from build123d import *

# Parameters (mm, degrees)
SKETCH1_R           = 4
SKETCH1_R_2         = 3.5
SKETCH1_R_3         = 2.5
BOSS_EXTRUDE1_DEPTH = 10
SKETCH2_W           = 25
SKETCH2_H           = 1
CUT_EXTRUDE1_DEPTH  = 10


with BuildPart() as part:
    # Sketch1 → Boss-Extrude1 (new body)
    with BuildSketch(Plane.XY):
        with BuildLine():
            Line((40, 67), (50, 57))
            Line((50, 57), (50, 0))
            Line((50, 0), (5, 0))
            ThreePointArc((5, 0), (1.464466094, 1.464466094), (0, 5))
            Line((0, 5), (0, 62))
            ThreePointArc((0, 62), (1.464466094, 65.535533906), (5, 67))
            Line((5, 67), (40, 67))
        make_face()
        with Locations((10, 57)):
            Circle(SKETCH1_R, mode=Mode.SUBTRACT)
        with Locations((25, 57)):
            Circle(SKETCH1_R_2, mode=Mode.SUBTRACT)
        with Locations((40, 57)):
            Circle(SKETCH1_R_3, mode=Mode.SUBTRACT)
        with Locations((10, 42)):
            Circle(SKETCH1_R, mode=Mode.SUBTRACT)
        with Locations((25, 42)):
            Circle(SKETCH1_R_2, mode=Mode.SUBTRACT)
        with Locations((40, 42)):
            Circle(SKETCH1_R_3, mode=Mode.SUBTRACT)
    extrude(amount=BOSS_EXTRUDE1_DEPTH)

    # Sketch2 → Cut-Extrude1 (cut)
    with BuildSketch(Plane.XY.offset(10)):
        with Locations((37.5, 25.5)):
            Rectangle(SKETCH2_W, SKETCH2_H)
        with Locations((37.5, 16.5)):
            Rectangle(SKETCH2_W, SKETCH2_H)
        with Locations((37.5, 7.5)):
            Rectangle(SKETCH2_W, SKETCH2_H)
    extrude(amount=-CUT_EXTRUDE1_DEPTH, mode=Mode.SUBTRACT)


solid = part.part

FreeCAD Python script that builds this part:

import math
import FreeCAD as App
import Part
import Sketcher
from FreeCAD import Vector
Q = App.Units.Quantity

doc = App.newDocument("Part")
params = doc.addObject("Spreadsheet::Sheet", "Params")
for row, (alias, value) in enumerate([
    ("sketch1_diameter", "5 mm"),
    ("sketch1_diameter2", "7 mm"),
    ("sketch1_diameter3", "8 mm"),
    ("sketch1_radius", "5 mm"),
    ("sketch1_width", "35 mm"),
    ("pad1_length", "10 mm"),
    ("sketch2_width", "25 mm"),
    ("sketch2_height", "1 mm"),
    ("pocket1_length", "10 mm"),
], start=1):
    params.set(f"A{row}", alias)
    params.set(f"B{row}", "=" + value)
    params.setAlias(f"B{row}", alias)

body = doc.addObject("PartDesign::Body", "Body")

# Sketch on XY plane
sketch1 = body.newObject("Sketcher::SketchObject", "Sketch")
sketch1.AttachmentSupport = (doc.getObject("XY_Plane"), [""])
sketch1.MapMode = "FlatFace"
sketch1.addGeometry([
    Part.LineSegment(Vector(50, 57, 0), Vector(40, 67, 0)),  # 0
    Part.LineSegment(Vector(40, 67, 0), Vector(5, 67, 0)),  # 1
    Part.ArcOfCircle(Part.Circle(Vector(5, 62, 0), Vector(0, 0, 1), 5), math.radians(90), math.radians(180)),  # 2
    Part.LineSegment(Vector(0, 62, 0), Vector(0, 5, 0)),  # 3
    Part.ArcOfCircle(Part.Circle(Vector(5, 5, 0), Vector(0, 0, 1), 5), math.radians(180), math.radians(270)),  # 4
    Part.LineSegment(Vector(5, 0, 0), Vector(50, 0, 0)),  # 5
    Part.LineSegment(Vector(50, 0, 0), Vector(50, 57, 0)),  # 6
    Part.Circle(Vector(40, 42, 0), Vector(0, 0, 1), 2.5),  # 7
    Part.Circle(Vector(25, 42, 0), Vector(0, 0, 1), 3.5),  # 8
    Part.Circle(Vector(10, 42, 0), Vector(0, 0, 1), 4),  # 9
    Part.Circle(Vector(40, 57, 0), Vector(0, 0, 1), 2.5),  # 10
    Part.Circle(Vector(25, 57, 0), Vector(0, 0, 1), 3.5),  # 11
    Part.Circle(Vector(10, 57, 0), Vector(0, 0, 1), 4),  # 12
], False)
sketch1.addConstraint([
    Sketcher.Constraint("Coincident", 0, 2, 1, 1),
    Sketcher.Constraint("Tangent", 1, 2, 2, 1),
    Sketcher.Constraint("Tangent", 2, 2, 3, 1),
    Sketcher.Constraint("Tangent", 3, 2, 4, 1),
    Sketcher.Constraint("Tangent", 4, 2, 5, 1),
    Sketcher.Constraint("Coincident", 5, 2, 6, 1),
    Sketcher.Constraint("Coincident", 6, 2, 0, 1),
    Sketcher.Constraint("Horizontal", 1),
    Sketcher.Constraint("Vertical", 3),
    Sketcher.Constraint("Horizontal", 5),
    Sketcher.Constraint("Vertical", 6),
    Sketcher.Constraint("Equal", 2, 4),
    Sketcher.Constraint("Equal", 7, 10),
    Sketcher.Constraint("Equal", 8, 11),
    Sketcher.Constraint("Equal", 9, 12),
    Sketcher.Constraint("PointOnObject", 2, 2, -2),
    Sketcher.Constraint("PointOnObject", 4, 2, -1),
    Sketcher.Constraint("Horizontal", 7, 3, 8, 3),
    Sketcher.Constraint("Horizontal", 8, 3, 9, 3),
    Sketcher.Constraint("Horizontal", 10, 3, 11, 3),
    Sketcher.Constraint("Horizontal", 11, 3, 12, 3),
    Sketcher.Constraint("Horizontal", 12, 3, 6, 2),
    Sketcher.Constraint("Vertical", 7, 3, 10, 3),
    Sketcher.Constraint("Vertical", 8, 3, 11, 3),
    Sketcher.Constraint("Vertical", 9, 3, 12, 3),
    Sketcher.Constraint("Vertical", 10, 3, 0, 2),
    Sketcher.Constraint("Equal", 3, 6),
    Sketcher.Constraint("Diameter", 7, Q("5 mm")),
    Sketcher.Constraint("Diameter", 8, Q("7 mm")),
    Sketcher.Constraint("Diameter", 9, Q("8 mm")),
    Sketcher.Constraint("Radius", 2, Q("5 mm")),
    Sketcher.Constraint("DistanceX", 1, 2, 1, 1, Q("35 mm")),
    Sketcher.Constraint("DistanceX", 5, 1, 5, 2, Q("45 mm")),
    Sketcher.Constraint("DistanceY", 3, 2, 3, 1, Q("57 mm")),
    Sketcher.Constraint("DistanceY", -1, 1, 7, 3, Q("42 mm")),
    Sketcher.Constraint("DistanceX", -1, 1, 8, 3, Q("25 mm")),
    Sketcher.Constraint("DistanceX", -1, 1, 9, 3, Q("10 mm")),
])
sketch1.setExpression("Constraints[27]", "Params.sketch1_diameter")
sketch1.setExpression("Constraints[28]", "Params.sketch1_diameter2")
sketch1.setExpression("Constraints[29]", "Params.sketch1_diameter3")
sketch1.setExpression("Constraints[30]", "Params.sketch1_radius")
sketch1.setExpression("Constraints[31]", "Params.sketch1_width")
pad1 = body.newObject("PartDesign::Pad", "Pad")
pad1.Profile = sketch1
pad1.setExpression("Length", "Params.pad1_length")

# Sketch on XY plane
sketch2 = body.newObject("Sketcher::SketchObject", "Sketch001")
sketch2.AttachmentSupport = (doc.getObject("XY_Plane"), [""])
sketch2.MapMode = "FlatFace"
sketch2.AttachmentOffset = App.Placement(Vector(0, 0, 10), App.Rotation())
sketch2.addGeometry([
    Part.LineSegment(Vector(25, 26, 0), Vector(25, 25, 0)),  # 0
    Part.LineSegment(Vector(25, 25, 0), Vector(50, 25, 0)),  # 1
    Part.LineSegment(Vector(50, 25, 0), Vector(50, 26, 0)),  # 2
    Part.LineSegment(Vector(50, 26, 0), Vector(25, 26, 0)),  # 3
    Part.LineSegment(Vector(25, 17, 0), Vector(25, 16, 0)),  # 4
    Part.LineSegment(Vector(25, 16, 0), Vector(50, 16, 0)),  # 5
    Part.LineSegment(Vector(50, 16, 0), Vector(50, 17, 0)),  # 6
    Part.LineSegment(Vector(50, 17, 0), Vector(25, 17, 0)),  # 7
    Part.LineSegment(Vector(25, 8, 0), Vector(25, 7, 0)),  # 8
    Part.LineSegment(Vector(25, 7, 0), Vector(50, 7, 0)),  # 9
    Part.LineSegment(Vector(50, 7, 0), Vector(50, 8, 0)),  # 10
    Part.LineSegment(Vector(50, 8, 0), Vector(25, 8, 0)),  # 11
], False)
sketch2.addConstraint([
    Sketcher.Constraint("Coincident", 0, 2, 1, 1),
    Sketcher.Constraint("Coincident", 1, 2, 2, 1),
    Sketcher.Constraint("Coincident", 2, 2, 3, 1),
    Sketcher.Constraint("Coincident", 3, 2, 0, 1),
    Sketcher.Constraint("Coincident", 4, 2, 5, 1),
    Sketcher.Constraint("Coincident", 5, 2, 6, 1),
    Sketcher.Constraint("Coincident", 6, 2, 7, 1),
    Sketcher.Constraint("Coincident", 7, 2, 4, 1),
    Sketcher.Constraint("Coincident", 8, 2, 9, 1),
    Sketcher.Constraint("Coincident", 9, 2, 10, 1),
    Sketcher.Constraint("Coincident", 10, 2, 11, 1),
    Sketcher.Constraint("Coincident", 11, 2, 8, 1),
    Sketcher.Constraint("Vertical", 0),
    Sketcher.Constraint("Horizontal", 1),
    Sketcher.Constraint("Vertical", 2),
    Sketcher.Constraint("Horizontal", 3),
    Sketcher.Constraint("Vertical", 4),
    Sketcher.Constraint("Horizontal", 5),
    Sketcher.Constraint("Vertical", 6),
    Sketcher.Constraint("Horizontal", 7),
    Sketcher.Constraint("Vertical", 8),
    Sketcher.Constraint("Horizontal", 9),
    Sketcher.Constraint("Vertical", 10),
    Sketcher.Constraint("Horizontal", 11),
    Sketcher.Constraint("Vertical", 3, 2, 4, 2),
    Sketcher.Constraint("Vertical", 2, 2, 5, 2),
    Sketcher.Constraint("Vertical", 7, 2, 8, 2),
    Sketcher.Constraint("Vertical", 6, 2, 9, 2),
    Sketcher.Constraint("Equal", 2, 4),
    Sketcher.Constraint("Equal", 6, 8),
    Sketcher.Constraint("DistanceX", 1, 1, 1, 2, Q("25 mm")),
    Sketcher.Constraint("DistanceY", 0, 2, 0, 1, Q("1 mm")),
    Sketcher.Constraint("DistanceX", -1, 1, 0, 2, Q("25 mm")),
    Sketcher.Constraint("DistanceY", -1, 1, 0, 2, Q("25 mm")),
    Sketcher.Constraint("DistanceY", -1, 1, 4, 2, Q("16 mm")),
    Sketcher.Constraint("DistanceY", -1, 1, 8, 2, Q("7 mm")),
])
sketch2.setExpression("Constraints[30]", "Params.sketch2_width")
sketch2.setExpression("Constraints[31]", "Params.sketch2_height")
pocket1 = body.newObject("PartDesign::Pocket", "Pocket")
pocket1.Profile = sketch2
pocket1.setExpression("Length", "Params.pocket1_length")

doc.recompute()
